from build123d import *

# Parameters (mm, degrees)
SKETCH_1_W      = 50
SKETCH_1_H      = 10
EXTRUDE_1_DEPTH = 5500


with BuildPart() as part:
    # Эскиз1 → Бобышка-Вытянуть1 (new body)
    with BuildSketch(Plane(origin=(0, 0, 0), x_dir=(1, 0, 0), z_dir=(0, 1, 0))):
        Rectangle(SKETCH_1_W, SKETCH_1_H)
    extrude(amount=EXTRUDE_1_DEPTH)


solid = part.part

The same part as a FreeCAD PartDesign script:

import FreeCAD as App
import Part
import Sketcher
from FreeCAD import Vector
Q = App.Units.Quantity

doc = App.newDocument("Part")
body = doc.addObject("PartDesign::Body", "Body")

# Sketch on XZ plane
sketch1 = body.newObject("Sketcher::SketchObject", "Sketch")
sketch1.AttachmentSupport = (doc.getObject("XZ_Plane"), [""])
sketch1.MapMode = "FlatFace"
sketch1.addGeometry([
    Part.LineSegment(Vector(-25, -5, 0), Vector(-25, 5, 0)),
    Part.LineSegment(Vector(-25, 5, 0), Vector(25, 5, 0)),
    Part.LineSegment(Vector(25, 5, 0), Vector(25, -5, 0)),
    Part.LineSegment(Vector(25, -5, 0), Vector(-25, -5, 0)),
], False)
sketch1.addConstraint([
    Sketcher.Constraint("Coincident", 0, 2, 1, 1),
    Sketcher.Constraint("Coincident", 1, 2, 2, 1),
    Sketcher.Constraint("Coincident", 2, 2, 3, 1),
    Sketcher.Constraint("Coincident", 3, 2, 0, 1),
    Sketcher.Constraint("Vertical", 0),
    Sketcher.Constraint("Horizontal", 1),
    Sketcher.Constraint("Vertical", 2),
    Sketcher.Constraint("Horizontal", 3),
    Sketcher.Constraint("Symmetric", 0, 2, 2, 2, -1, 1),
    Sketcher.Constraint("DistanceX", 1, 1, 1, 2, Q("50 mm")),
    Sketcher.Constraint("DistanceY", 0, 1, 0, 2, Q("10 mm")),
])
pad1 = body.newObject("PartDesign::Pad", "Pad")
pad1.Profile = sketch1
pad1.Length = 5500
pad1.Reversed = True

doc.recompute()
